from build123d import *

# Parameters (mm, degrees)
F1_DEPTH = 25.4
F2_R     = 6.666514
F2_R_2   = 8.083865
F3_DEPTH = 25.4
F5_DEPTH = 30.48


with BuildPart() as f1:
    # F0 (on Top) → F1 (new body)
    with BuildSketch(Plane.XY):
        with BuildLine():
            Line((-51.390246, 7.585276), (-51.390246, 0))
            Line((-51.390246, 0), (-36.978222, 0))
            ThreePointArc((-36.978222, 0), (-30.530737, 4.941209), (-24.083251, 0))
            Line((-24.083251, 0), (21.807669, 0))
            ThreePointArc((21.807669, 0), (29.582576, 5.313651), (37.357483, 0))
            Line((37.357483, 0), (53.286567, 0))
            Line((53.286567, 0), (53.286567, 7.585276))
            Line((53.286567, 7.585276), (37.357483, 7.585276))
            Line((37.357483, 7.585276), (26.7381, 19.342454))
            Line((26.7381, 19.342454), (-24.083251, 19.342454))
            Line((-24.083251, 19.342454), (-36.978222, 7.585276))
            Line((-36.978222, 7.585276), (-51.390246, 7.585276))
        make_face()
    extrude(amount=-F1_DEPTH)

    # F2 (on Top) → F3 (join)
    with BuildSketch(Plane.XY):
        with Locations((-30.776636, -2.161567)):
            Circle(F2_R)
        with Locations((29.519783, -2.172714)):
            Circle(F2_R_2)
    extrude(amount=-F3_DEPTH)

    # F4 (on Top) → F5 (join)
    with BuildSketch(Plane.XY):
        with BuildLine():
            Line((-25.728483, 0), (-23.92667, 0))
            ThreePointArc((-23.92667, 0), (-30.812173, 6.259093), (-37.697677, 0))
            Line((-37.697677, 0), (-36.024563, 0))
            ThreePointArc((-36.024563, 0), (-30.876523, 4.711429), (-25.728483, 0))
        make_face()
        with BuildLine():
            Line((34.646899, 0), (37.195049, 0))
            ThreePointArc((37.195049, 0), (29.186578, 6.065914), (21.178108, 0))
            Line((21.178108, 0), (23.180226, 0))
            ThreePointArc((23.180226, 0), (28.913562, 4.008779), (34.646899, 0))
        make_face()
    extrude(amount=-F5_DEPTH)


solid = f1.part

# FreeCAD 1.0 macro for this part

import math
import FreeCAD as App
import Part
import Sketcher
from FreeCAD import Vector
Q = App.Units.Quantity

doc = App.newDocument("Part")
params = doc.addObject("Spreadsheet::Sheet", "Params")
for row, (alias, value) in enumerate([
    ("pad1_length", "1 in"),
    ("pad2_length", "1 in"),
    ("pad3_length", "1.2 in"),
], start=1):
    params.set(f"A{row}", alias)
    params.set(f"B{row}", "=" + value)
    params.setAlias(f"B{row}", alias)

body = doc.addObject("PartDesign::Body", "Body")

# Sketch on XY plane
sketch1 = body.newObject("Sketcher::SketchObject", "Sketch")
sketch1.AttachmentSupport = (doc.getObject("XY_Plane"), [""])
sketch1.MapMode = "FlatFace"
sketch1.addGeometry([
    Part.LineSegment(Vector(-51, 8, 0), Vector(-51, 0, 0)),  # 0
    Part.LineSegment(Vector(-51, 0, 0), Vector(-37, 0, 0)),  # 1
    Part.ArcOfCircle(Part.Circle(Vector(-31, -2, 0), Vector(0, 0, 1), 7), math.radians(15), math.radians(165)),  # 2
    Part.LineSegment(Vector(-24, 0, 0), Vector(22, 0, 0)),  # 3
    Part.ArcOfCircle(Part.Circle(Vector(30, -3, 0), Vector(0, 0, 1), 8), math.radians(21), math.radians(159)),  # 4
    Part.LineSegment(Vector(37, 0, 0), Vector(53, 0, 0)),  # 5
    Part.LineSegment(Vector(53, 0, 0), Vector(53, 8, 0)),  # 6
    Part.LineSegment(Vector(53, 8, 0), Vector(37, 8, 0)),  # 7
    Part.LineSegment(Vector(37, 8, 0), Vector(27, 19, 0)),  # 8
    Part.LineSegment(Vector(27, 19, 0), Vector(-24, 19, 0)),  # 9
    Part.LineSegment(Vector(-24, 19, 0), Vector(-37, 8, 0)),  # 10
    Part.LineSegment(Vector(-37, 8, 0), Vector(-51, 8, 0)),  # 11
], False)
sketch1.addConstraint([
    Sketcher.Constraint("Coincident", 0, 2, 1, 1),
    Sketcher.Constraint("Coincident", 1, 2, 2, 2),
    Sketcher.Constraint("Coincident", 2, 1, 3, 1),
    Sketcher.Constraint("Coincident", 3, 2, 4, 2),
    Sketcher.Constraint("Coincident", 4, 1, 5, 1),
    Sketcher.Constraint("Coincident", 5, 2, 6, 1),
    Sketcher.Constraint("Coincident", 6, 2, 7, 1),
    Sketcher.Constraint("Coincident", 7, 2, 8, 1),
    Sketcher.Constraint("Coincident", 8, 2, 9, 1),
    Sketcher.Constraint("Coincident", 9, 2, 10, 1),
    Sketcher.Constraint("Coincident", 10, 2, 11, 1),
    Sketcher.Constraint("Coincident", 11, 2, 0, 1),
    Sketcher.Constraint("Vertical", 0),
    Sketcher.Constraint("Horizontal", 1),
    Sketcher.Constraint("Horizontal", 3),
    Sketcher.Constraint("Horizontal", 5),
    Sketcher.Constraint("Vertical", 6),
    Sketcher.Constraint("Horizontal", 7),
    Sketcher.Constraint("Horizontal", 9),
    Sketcher.Constraint("Horizontal", 11),
    Sketcher.Constraint("PointOnObject", 0, 2, -1),
    Sketcher.Constraint("PointOnObject", 2, 1, -1),
    Sketcher.Constraint("PointOnObject", 4, 1, -1),
    Sketcher.Constraint("Horizontal", 7, 2, 10, 2),
    Sketcher.Constraint("Vertical", 4, 1, 7, 2),
    Sketcher.Constraint("Vertical", 2, 1, 9, 2),
    Sketcher.Constraint("Vertical", 1, 2, 10, 2),
    Sketcher.Constraint("Radius", 2, Q("6.677072 mm")),
    Sketcher.Constraint("Radius", 4, Q("8.344928 mm")),
    Sketcher.Constraint("DistanceX", 3, 1, 3, 2, Q("45.89092 mm")),
    Sketcher.Constraint("DistanceX", 9, 2, 9, 1, Q("50.821351 mm")),
    Sketcher.Constraint("DistanceX", -1, 1, 8, 2, Q("26.7381 mm")),
    Sketcher.Constraint("DistanceX", 1, 2, 4, 3, Q("66.560798 mm")),
    Sketcher.Constraint("Distance", 8, Q("15.843059 mm")),
    Sketcher.Constraint("Distance", 10, Q("17.450258 mm")),
    Sketcher.Constraint("DistanceX", 1, 1, 1, 2, Q("14.412024 mm")),
    Sketcher.Constraint("DistanceX", 5, 1, 5, 2, Q("15.929084 mm")),
    Sketcher.Constraint("DistanceY", 0, 2, 0, 1, Q("7.585276 mm")),
])
pad1 = body.newObject("PartDesign::Pad", "Pad")
pad1.Profile = sketch1
pad1.setExpression("Length", "Params.pad1_length")
pad1.Reversed = True

# Sketch on XY plane
sketch2 = body.newObject("Sketcher::SketchObject", "Sketch001")
sketch2.AttachmentSupport = (doc.getObject("XY_Plane"), [""])
sketch2.MapMode = "FlatFace"
sketch2.addGeometry([
    Part.Circle(Vector(-31, -2, 0), Vector(0, 0, 1), 7),
    Part.Circle(Vector(30, -2, 0), Vector(0, 0, 1), 8),
], False)
sketch2.addConstraint([
    Sketcher.Constraint("Diameter", 1, Q("16.16773 mm")),
    Sketcher.Constraint("Diameter", 0, Q("13.333028 mm")),
    Sketcher.Constraint("DistanceX", 0, 3, 1, 3, Q("60.296419 mm")),
    Sketcher.Constraint("DistanceX", 0, 3, -1, 1, Q("30.776636 mm")),
    Sketcher.Constraint("DistanceY", 0, 3, -1, 1, Q("2.161567 mm")),
    Sketcher.Constraint("DistanceY", 1, 3, -1, 1, Q("2.172714 mm")),
])
pad2 = body.newObject("PartDesign::Pad", "Pad001")
pad2.Profile = sketch2
pad2.setExpression("Length", "Params.pad2_length")
pad2.Reversed = True

# Sketch on XY plane
sketch3 = body.newObject("Sketcher::SketchObject", "Sketch002")
sketch3.AttachmentSupport = (doc.getObject("XY_Plane"), [""])
sketch3.MapMode = "FlatFace"
sketch3.addGeometry([
    Part.LineSegment(Vector(-25.7, 0, 0), Vector(-23.9, 0, 0)),  # 0
    Part.ArcOfCircle(Part.Circle(Vector(-30.8, -0.7, 0), Vector(0, 0, 1), 6.9), math.radians(5), math.radians(175)),  # 1
    Part.LineSegment(Vector(-37.7, 0, 0), Vector(-36, 0, 0)),  # 2
    Part.ArcOfCircle(Part.Circle(Vector(-30.9, -0.5, 0), Vector(0, 0, 1), 5.2), math.radians(5), math.radians(175)),  # 3
    Part.LineSegment(Vector(34.6, 0, 0), Vector(37.2, 0, 0)),  # 4
    Part.ArcOfCircle(Part.Circle(Vector(29.2, -2.3, 0), Vector(0, 0, 1), 8.3), math.radians(16), math.radians(164)),  # 5
    Part.LineSegment(Vector(21.2, 0, 0), Vector(23.2, 0, 0)),  # 6
    Part.ArcOfCircle(Part.Circle(Vector(28.9, -2.1, 0), Vector(0, 0, 1), 6.1), math.radians(20), math.radians(160)),  # 7
], False)
sketch3.addConstraint([
    Sketcher.Constraint("Coincident", 0, 2, 1, 1),
    Sketcher.Constraint("Coincident", 1, 2, 2, 1),
    Sketcher.Constraint("Coincident", 2, 2, 3, 2),
    Sketcher.Constraint("Coincident", 3, 1, 0, 1),
    Sketcher.Constraint("Coincident", 4, 2, 5, 1),
    Sketcher.Constraint("Coincident", 5, 2, 6, 1),
    Sketcher.Constraint("Coincident", 6, 2, 7, 2),
    Sketcher.Constraint("Coincident", 7, 1, 4, 1),
    Sketcher.Constraint("Horizontal", 0),
    Sketcher.Constraint("Horizontal", 2),
    Sketcher.Constraint("Horizontal", 4),
    Sketcher.Constraint("Horizontal", 6),
    Sketcher.Constraint("PointOnObject", 0, 2, -1),
    Sketcher.Constraint("PointOnObject", 1, 2, -1),
    Sketcher.Constraint("PointOnObject", 4, 2, -1),
    Sketcher.Constraint("PointOnObject", 5, 2, -1),
    Sketcher.Constraint("Radius", 1, Q("6.916849 mm")),
    Sketcher.Constraint("Radius", 3, Q("5.168271 mm")),
    Sketcher.Constraint("Radius", 5, Q("8.319514 mm")),
    Sketcher.Constraint("Radius", 7, Q("6.104285 mm")),
    Sketcher.Constraint("DistanceX", 4, 1, 4, 2, Q("2.54815 mm")),
    Sketcher.Constraint("DistanceY", 5, 3, -1, 1, Q("2.2536 mm")),
    Sketcher.Constraint("DistanceX", -1, 1, 7, 1, Q("34.646899 mm")),
    Sketcher.Constraint("DistanceX", 3, 3, 5, 3, Q("60.063102 mm")),
    Sketcher.Constraint("DistanceX", 0, 1, 0, 2, Q("1.801813 mm")),
    Sketcher.Constraint("DistanceX", 2, 1, 2, 2, Q("1.673114 mm")),
    Sketcher.Constraint("DistanceX", 6, 1, 6, 2, Q("2.002118 mm")),
    Sketcher.Constraint("DistanceY", 3, 3, -1, 1, Q("0.456842 mm")),
])
pad3 = body.newObject("PartDesign::Pad", "Pad002")
pad3.Profile = sketch3
pad3.setExpression("Length", "Params.pad3_length")
pad3.Reversed = True

doc.recompute()
